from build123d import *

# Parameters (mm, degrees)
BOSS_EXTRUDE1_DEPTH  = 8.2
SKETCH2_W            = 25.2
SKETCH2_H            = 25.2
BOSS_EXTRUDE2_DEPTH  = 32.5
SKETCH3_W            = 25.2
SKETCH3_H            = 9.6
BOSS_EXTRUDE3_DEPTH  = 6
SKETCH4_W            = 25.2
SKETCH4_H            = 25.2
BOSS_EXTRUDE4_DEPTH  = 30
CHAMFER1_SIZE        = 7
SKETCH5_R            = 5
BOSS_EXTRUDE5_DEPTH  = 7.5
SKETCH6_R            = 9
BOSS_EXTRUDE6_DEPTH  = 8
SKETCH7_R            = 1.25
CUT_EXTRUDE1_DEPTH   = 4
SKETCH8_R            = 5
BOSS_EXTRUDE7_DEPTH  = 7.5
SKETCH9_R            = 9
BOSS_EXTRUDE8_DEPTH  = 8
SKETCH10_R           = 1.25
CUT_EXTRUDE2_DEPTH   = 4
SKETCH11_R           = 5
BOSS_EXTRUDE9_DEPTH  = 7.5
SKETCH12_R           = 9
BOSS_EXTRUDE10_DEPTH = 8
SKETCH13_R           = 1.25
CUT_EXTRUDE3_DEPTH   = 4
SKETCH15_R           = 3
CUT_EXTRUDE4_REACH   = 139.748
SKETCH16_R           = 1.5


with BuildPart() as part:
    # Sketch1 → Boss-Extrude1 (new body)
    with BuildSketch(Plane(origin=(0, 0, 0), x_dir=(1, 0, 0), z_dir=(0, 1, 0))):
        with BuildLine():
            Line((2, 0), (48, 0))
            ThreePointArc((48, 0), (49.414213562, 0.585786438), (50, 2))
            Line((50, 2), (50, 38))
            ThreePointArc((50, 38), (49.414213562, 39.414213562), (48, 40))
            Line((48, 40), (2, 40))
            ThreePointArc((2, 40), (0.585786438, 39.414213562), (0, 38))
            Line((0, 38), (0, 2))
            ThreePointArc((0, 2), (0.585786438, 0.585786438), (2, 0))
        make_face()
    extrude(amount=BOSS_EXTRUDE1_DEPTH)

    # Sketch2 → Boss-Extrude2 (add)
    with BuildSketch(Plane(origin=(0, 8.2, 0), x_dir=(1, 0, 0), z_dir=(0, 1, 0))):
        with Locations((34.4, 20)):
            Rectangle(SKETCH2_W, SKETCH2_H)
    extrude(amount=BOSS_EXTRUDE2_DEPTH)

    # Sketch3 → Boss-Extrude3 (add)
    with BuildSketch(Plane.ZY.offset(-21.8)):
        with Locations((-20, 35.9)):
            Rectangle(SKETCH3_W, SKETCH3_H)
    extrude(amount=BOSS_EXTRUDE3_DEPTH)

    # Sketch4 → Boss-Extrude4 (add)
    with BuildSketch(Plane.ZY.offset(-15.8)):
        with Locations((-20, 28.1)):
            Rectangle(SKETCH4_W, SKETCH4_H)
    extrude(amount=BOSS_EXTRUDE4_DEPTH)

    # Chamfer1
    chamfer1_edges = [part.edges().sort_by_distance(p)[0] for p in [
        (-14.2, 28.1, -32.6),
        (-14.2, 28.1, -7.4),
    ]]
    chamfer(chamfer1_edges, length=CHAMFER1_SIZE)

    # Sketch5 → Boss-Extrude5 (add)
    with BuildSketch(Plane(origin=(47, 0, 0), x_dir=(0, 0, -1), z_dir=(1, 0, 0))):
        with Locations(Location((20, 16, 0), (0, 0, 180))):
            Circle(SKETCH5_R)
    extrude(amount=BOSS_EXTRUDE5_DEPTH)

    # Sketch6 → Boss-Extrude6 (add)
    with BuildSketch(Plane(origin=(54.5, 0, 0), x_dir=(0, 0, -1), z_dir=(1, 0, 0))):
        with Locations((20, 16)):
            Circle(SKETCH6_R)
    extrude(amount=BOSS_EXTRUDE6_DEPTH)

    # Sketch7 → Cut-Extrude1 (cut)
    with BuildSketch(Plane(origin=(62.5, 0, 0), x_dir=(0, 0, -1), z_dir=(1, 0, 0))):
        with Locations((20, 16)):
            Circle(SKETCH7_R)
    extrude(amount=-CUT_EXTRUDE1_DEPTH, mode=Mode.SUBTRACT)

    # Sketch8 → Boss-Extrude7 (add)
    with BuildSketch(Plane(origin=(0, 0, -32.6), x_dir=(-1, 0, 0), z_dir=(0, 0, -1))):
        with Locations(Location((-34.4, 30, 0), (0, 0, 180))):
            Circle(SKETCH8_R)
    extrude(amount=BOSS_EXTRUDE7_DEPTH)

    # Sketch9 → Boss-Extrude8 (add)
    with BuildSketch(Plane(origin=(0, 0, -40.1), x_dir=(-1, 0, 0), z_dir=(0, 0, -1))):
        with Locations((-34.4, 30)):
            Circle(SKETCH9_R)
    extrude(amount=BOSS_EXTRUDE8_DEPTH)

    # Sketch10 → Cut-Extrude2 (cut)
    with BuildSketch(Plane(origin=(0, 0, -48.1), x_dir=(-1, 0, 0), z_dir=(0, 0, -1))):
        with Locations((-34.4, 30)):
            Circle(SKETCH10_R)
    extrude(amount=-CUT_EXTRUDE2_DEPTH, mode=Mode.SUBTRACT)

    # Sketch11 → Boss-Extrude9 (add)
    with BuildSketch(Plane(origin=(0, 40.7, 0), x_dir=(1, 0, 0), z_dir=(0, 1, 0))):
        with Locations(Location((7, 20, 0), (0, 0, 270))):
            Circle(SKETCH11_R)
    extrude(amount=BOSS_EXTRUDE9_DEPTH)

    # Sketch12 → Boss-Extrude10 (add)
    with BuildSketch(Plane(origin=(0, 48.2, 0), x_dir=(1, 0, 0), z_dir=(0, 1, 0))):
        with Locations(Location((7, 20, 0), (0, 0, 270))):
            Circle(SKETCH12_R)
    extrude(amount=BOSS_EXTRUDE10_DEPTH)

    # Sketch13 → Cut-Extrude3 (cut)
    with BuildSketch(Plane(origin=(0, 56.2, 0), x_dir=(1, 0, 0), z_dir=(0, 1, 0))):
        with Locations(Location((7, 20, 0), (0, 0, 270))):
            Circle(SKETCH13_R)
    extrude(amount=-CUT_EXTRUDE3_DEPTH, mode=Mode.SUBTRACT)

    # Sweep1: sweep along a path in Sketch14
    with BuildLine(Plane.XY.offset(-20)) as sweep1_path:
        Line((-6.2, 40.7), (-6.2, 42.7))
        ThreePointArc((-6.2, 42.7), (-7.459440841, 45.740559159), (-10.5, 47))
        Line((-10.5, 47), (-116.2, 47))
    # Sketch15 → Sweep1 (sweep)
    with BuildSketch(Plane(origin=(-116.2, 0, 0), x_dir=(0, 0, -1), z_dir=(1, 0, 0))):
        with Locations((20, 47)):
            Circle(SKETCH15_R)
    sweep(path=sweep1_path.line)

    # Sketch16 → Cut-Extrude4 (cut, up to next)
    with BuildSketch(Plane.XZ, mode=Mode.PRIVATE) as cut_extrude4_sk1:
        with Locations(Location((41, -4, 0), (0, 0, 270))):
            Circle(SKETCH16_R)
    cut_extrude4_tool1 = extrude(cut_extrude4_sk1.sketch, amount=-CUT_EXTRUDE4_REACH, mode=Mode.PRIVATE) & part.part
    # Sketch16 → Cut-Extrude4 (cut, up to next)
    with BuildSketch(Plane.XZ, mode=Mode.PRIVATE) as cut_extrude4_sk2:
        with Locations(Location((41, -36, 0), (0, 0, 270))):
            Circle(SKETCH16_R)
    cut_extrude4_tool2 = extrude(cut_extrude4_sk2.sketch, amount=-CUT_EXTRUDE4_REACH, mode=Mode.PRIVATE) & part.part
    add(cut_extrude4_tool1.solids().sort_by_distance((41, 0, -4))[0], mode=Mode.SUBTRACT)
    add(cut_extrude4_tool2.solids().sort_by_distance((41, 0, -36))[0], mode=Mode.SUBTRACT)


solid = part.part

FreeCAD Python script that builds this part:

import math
import FreeCAD as App
import Part
import Sketcher
Q = App.Units.Quantity


def edges_at(feature, points):
    """Names of the edges that pass closest to the given points."""
    edges = feature.Shape.Edges
    near = lambda p: min(range(len(edges)), key=lambda i: edges[i].distToShape(Part.Vertex(*p))[0])
    return sorted({f"Edge{near(p) + 1}" for p in points})


def add_polygon(sketch, points):
    """Adds a closed chain of lines whose ends are joined by coincident constraints."""
    first, n = sketch.GeometryCount, len(points)
    for a, b in zip(points, points[1:] + points[:1]):
        sketch.addGeometry(Part.LineSegment(App.Vector(*a, 0), App.Vector(*b, 0)), False)
    for i in range(n):
        sketch.addConstraint(Sketcher.Constraint("Coincident", first + i, 2, first + (i + 1) % n, 1))

doc = App.newDocument("Part")
body = doc.addObject("PartDesign::Body", "Body")

# Sketch on XZ plane
sketch1 = body.newObject("Sketcher::SketchObject", "Sketch")
sketch1.AttachmentSupport = (doc.getObject("XZ_Plane"), [""])
sketch1.MapMode = "FlatFace"
sketch1.addGeometry([
    Part.LineSegment(App.Vector(2, 0, 0), App.Vector(48, 0, 0)),  # 0
    Part.ArcOfCircle(Part.Circle(App.Vector(48, -2, 0), App.Vector(0, 0, 1), 2), math.radians(0), math.radians(90)),  # 1
    Part.LineSegment(App.Vector(50, -2, 0), App.Vector(50, -38, 0)),  # 2
    Part.ArcOfCircle(Part.Circle(App.Vector(48, -38, 0), App.Vector(0, 0, 1), 2), math.radians(-90), math.radians(0)),  # 3
    Part.LineSegment(App.Vector(48, -40, 0), App.Vector(2, -40, 0)),  # 4
    Part.ArcOfCircle(Part.Circle(App.Vector(2, -38, 0), App.Vector(0, 0, 1), 2), math.radians(-180), math.radians(-90)),  # 5
    Part.LineSegment(App.Vector(0, -38, 0), App.Vector(0, -2, 0)),  # 6
    Part.ArcOfCircle(Part.Circle(App.Vector(2, -2, 0), App.Vector(0, 0, 1), 2), math.radians(90), math.radians(180)),  # 7
], False)
sketch1.addConstraint([
    Sketcher.Constraint("Tangent", 0, 2, 1, 2),
    Sketcher.Constraint("Tangent", 1, 1, 2, 1),
    Sketcher.Constraint("Tangent", 2, 2, 3, 2),
    Sketcher.Constraint("Tangent", 3, 1, 4, 1),
    Sketcher.Constraint("Tangent", 4, 2, 5, 2),
    Sketcher.Constraint("Tangent", 5, 1, 6, 1),
    Sketcher.Constraint("Tangent", 6, 2, 7, 2),
    Sketcher.Constraint("Tangent", 7, 1, 0, 1),
    Sketcher.Constraint("Horizontal", 0),
    Sketcher.Constraint("Vertical", 2),
    Sketcher.Constraint("Horizontal", 4),
    Sketcher.Constraint("Vertical", 6),
    Sketcher.Constraint("Equal", 1, 3),
    Sketcher.Constraint("Equal", 3, 5),
    Sketcher.Constraint("Equal", 5, 7),
    Sketcher.Constraint("PointOnObject", 0, 2, -1),
    Sketcher.Constraint("PointOnObject", 5, 1, -2),
    Sketcher.Constraint("Radius", 1, Q("2 mm")),
    Sketcher.Constraint("DistanceX", 0, 1, 0, 2, Q("46 mm")),
    Sketcher.Constraint("DistanceY", 2, 2, 2, 1, Q("36 mm")),
])
pad1 = body.newObject("PartDesign::Pad", "Pad")
pad1.Profile = sketch1
pad1.Length = 8.2
pad1.Reversed = True

# Sketch on XZ plane
sketch2 = body.newObject("Sketcher::SketchObject", "Sketch001")
sketch2.AttachmentSupport = (doc.getObject("XZ_Plane"), [""])
sketch2.MapMode = "FlatFace"
sketch2.AttachmentOffset = App.Placement(App.Vector(0, 0, -8.2), App.Rotation())
add_polygon(sketch2, [(22, -33), (22, -7), (47, -7), (47, -33)])  # lines 0-3
sketch2.addConstraint([
    Sketcher.Constraint("Vertical", 0),
    Sketcher.Constraint("Horizontal", 1),
    Sketcher.Constraint("Vertical", 2),
    Sketcher.Constraint("Horizontal", 3),
    Sketcher.Constraint("Equal", 3, 0),
    Sketcher.Constraint("DistanceX", 1, 1, 1, 2, Q("25.2 mm")),
    Sketcher.Constraint("DistanceX", -1, 1, 1, 2, Q("47 mm")),
    Sketcher.Constraint("DistanceY", 0, 2, -1, 1, Q("7.4 mm")),
])
pad2 = body.newObject("PartDesign::Pad", "Pad001")
pad2.Profile = sketch2
pad2.Length = 32.5
pad2.Reversed = True

# Sketch on YZ plane
sketch3 = body.newObject("Sketcher::SketchObject", "Sketch002")
sketch3.AttachmentSupport = (doc.getObject("YZ_Plane"), [""])
sketch3.MapMode = "FlatFace"
sketch3.AttachmentOffset = App.Placement(App.Vector(0, 0, 21.8), App.Rotation())
add_polygon(sketch3, [(41, -33), (31, -33), (31, -7), (41, -7)])  # lines 0-3
sketch3.addConstraint([
    Sketcher.Constraint("Horizontal", 0),
    Sketcher.Constraint("Vertical", 1),
    Sketcher.Constraint("Horizontal", 2),
    Sketcher.Constraint("Vertical", 3),
    Sketcher.Constraint("DistanceX", 0, 2, 0, 1, Q("9.6 mm")),
    Sketcher.Constraint("DistanceY", 1, 1, 1, 2, Q("25.2 mm")),
    Sketcher.Constraint("DistanceX", -1, 1, 0, 2, Q("31.1 mm")),
    Sketcher.Constraint("DistanceY", 0, 2, -1, 1, Q("32.6 mm")),
])
pad3 = body.newObject("PartDesign::Pad", "Pad002")
pad3.Profile = sketch3
pad3.Length = 6
pad3.Reversed = True

# Sketch on YZ plane
sketch4 = body.newObject("Sketcher::SketchObject", "Sketch003")
sketch4.AttachmentSupport = (doc.getObject("YZ_Plane"), [""])
sketch4.MapMode = "FlatFace"
sketch4.AttachmentOffset = App.Placement(App.Vector(0, 0, 15.8), App.Rotation())
add_polygon(sketch4, [(41, -33), (16, -33), (16, -7), (41, -7)])  # lines 0-3
sketch4.addConstraint([
    Sketcher.Constraint("Horizontal", 0),
    Sketcher.Constraint("Vertical", 1),
    Sketcher.Constraint("Horizontal", 2),
    Sketcher.Constraint("Vertical", 3),
    Sketcher.Constraint("Equal", 2, 1),
    Sketcher.Constraint("DistanceX", 0, 2, 0, 1, Q("25.2 mm")),
    Sketcher.Constraint("DistanceX", -1, 1, 0, 2, Q("15.5 mm")),
    Sketcher.Constraint("DistanceY", 0, 2, -1, 1, Q("32.6 mm")),
])
pad4 = body.newObject("PartDesign::Pad", "Pad003")
pad4.Profile = sketch4
pad4.Length = 30
pad4.Reversed = True
doc.recompute()

chamfer = body.newObject("PartDesign::Chamfer", "Chamfer")
chamfer.Base = (pad4, edges_at(pad4, [(-14.2, 28.1, -32.6), (-14.2, 28.1, -7.4)]))
chamfer.Size = 7

# Sketch on YZ plane
sketch5 = body.newObject("Sketcher::SketchObject", "Sketch004")
sketch5.AttachmentSupport = (doc.getObject("YZ_Plane"), [""])
sketch5.MapMode = "FlatFace"
sketch5.AttachmentOffset = App.Placement(App.Vector(0, 0, 47), App.Rotation())
sketch5.addGeometry(Part.Circle(App.Vector(16, -20, 0), App.Vector(0, 0, 1), 5), False)
sketch5.addConstraint([
    Sketcher.Constraint("Diameter", 0, Q("10 mm")),
    Sketcher.Constraint("DistanceX", -1, 1, 0, 3, Q("16 mm")),
    Sketcher.Constraint("DistanceY", 0, 3, -1, 1, Q("20 mm")),
])
pad5 = body.newObject("PartDesign::Pad", "Pad004")
pad5.Profile = sketch5
pad5.Length = 7.5

# Sketch on YZ plane
sketch6 = body.newObject("Sketcher::SketchObject", "Sketch005")
sketch6.AttachmentSupport = (doc.getObject("YZ_Plane"), [""])
sketch6.MapMode = "FlatFace"
sketch6.AttachmentOffset = App.Placement(App.Vector(0, 0, 54.5), App.Rotation())
sketch6.addGeometry(Part.Circle(App.Vector(16, -20, 0), App.Vector(0, 0, 1), 9), False)
sketch6.addConstraint([
    Sketcher.Constraint("Diameter", 0, Q("18 mm")),
    Sketcher.Constraint("DistanceX", -1, 1, 0, 3, Q("16 mm")),
    Sketcher.Constraint("DistanceY", 0, 3, -1, 1, Q("20 mm")),
])
pad6 = body.newObject("PartDesign::Pad", "Pad005")
pad6.Profile = sketch6
pad6.Length = 8

# Sketch on YZ plane
sketch7 = body.newObject("Sketcher::SketchObject", "Sketch006")
sketch7.AttachmentSupport = (doc.getObject("YZ_Plane"), [""])
sketch7.MapMode = "FlatFace"
sketch7.AttachmentOffset = App.Placement(App.Vector(0, 0, 62.5), App.Rotation())
sketch7.addGeometry(Part.Circle(App.Vector(16, -20, 0), App.Vector(0, 0, 1), 1.2), False)
sketch7.addConstraint([
    Sketcher.Constraint("Diameter", 0, Q("2.5 mm")),
    Sketcher.Constraint("DistanceX", -1, 1, 0, 3, Q("16 mm")),
    Sketcher.Constraint("DistanceY", 0, 3, -1, 1, Q("20 mm")),
])
pocket1 = body.newObject("PartDesign::Pocket", "Pocket")
pocket1.Profile = sketch7
pocket1.Length = 4

# Sketch on XY plane
sketch8 = body.newObject("Sketcher::SketchObject", "Sketch007")
sketch8.AttachmentSupport = (doc.getObject("XY_Plane"), [""])
sketch8.MapMode = "FlatFace"
sketch8.AttachmentOffset = App.Placement(App.Vector(0, 0, -32.6), App.Rotation())
sketch8.addGeometry(Part.Circle(App.Vector(34, 30, 0), App.Vector(0, 0, 1), 5), False)
sketch8.addConstraint([
    Sketcher.Constraint("Diameter", 0, Q("10 mm")),
    Sketcher.Constraint("DistanceY", -1, 1, 0, 3, Q("30 mm")),
    Sketcher.Constraint("DistanceX", -1, 1, 0, 3, Q("34.4 mm")),
])
pad7 = body.newObject("PartDesign::Pad", "Pad006")
pad7.Profile = sketch8
pad7.Length = 7.5
pad7.Reversed = True

# Sketch on XY plane
sketch9 = body.newObject("Sketcher::SketchObject", "Sketch008")
sketch9.AttachmentSupport = (doc.getObject("XY_Plane"), [""])
sketch9.MapMode = "FlatFace"
sketch9.AttachmentOffset = App.Placement(App.Vector(0, 0, -40.1), App.Rotation())
sketch9.addGeometry(Part.Circle(App.Vector(34, 30, 0), App.Vector(0, 0, 1), 9), False)
sketch9.addConstraint([
    Sketcher.Constraint("Diameter", 0, Q("18 mm")),
    Sketcher.Constraint("DistanceY", -1, 1, 0, 3, Q("30 mm")),
    Sketcher.Constraint("DistanceX", -1, 1, 0, 3, Q("34.4 mm")),
])
pad8 = body.newObject("PartDesign::Pad", "Pad007")
pad8.Profile = sketch9
pad8.Length = 8
pad8.Reversed = True

# Sketch on XY plane
sketch10 = body.newObject("Sketcher::SketchObject", "Sketch009")
sketch10.AttachmentSupport = (doc.getObject("XY_Plane"), [""])
sketch10.MapMode = "FlatFace"
sketch10.AttachmentOffset = App.Placement(App.Vector(0, 0, -48.1), App.Rotation())
sketch10.addGeometry(Part.Circle(App.Vector(34.4, 30, 0), App.Vector(0, 0, 1), 1.2), False)
sketch10.addConstraint([
    Sketcher.Constraint("Diameter", 0, Q("2.5 mm")),
    Sketcher.Constraint("DistanceY", -1, 1, 0, 3, Q("30 mm")),
    Sketcher.Constraint("DistanceX", -1, 1, 0, 3, Q("34.4 mm")),
])
pocket2 = body.newObject("PartDesign::Pocket", "Pocket001")
pocket2.Profile = sketch10
pocket2.Length = 4
pocket2.Reversed = True

# Sketch on XZ plane
sketch11 = body.newObject("Sketcher::SketchObject", "Sketch010")
sketch11.AttachmentSupport = (doc.getObject("XZ_Plane"), [""])
sketch11.MapMode = "FlatFace"
sketch11.AttachmentOffset = App.Placement(App.Vector(0, 0, -40.7), App.Rotation())
sketch11.addGeometry(Part.Circle(App.Vector(7, -20, 0), App.Vector(0, 0, 1), 5), False)
sketch11.addConstraint([
    Sketcher.Constraint("Diameter", 0, Q("10 mm")),
    Sketcher.Constraint("DistanceX", -1, 1, 0, 3, Q("7 mm")),
    Sketcher.Constraint("DistanceY", 0, 3, -1, 1, Q("20 mm")),
])
pad9 = body.newObject("PartDesign::Pad", "Pad008")
pad9.Profile = sketch11
pad9.Length = 7.5
pad9.Reversed = True

# Sketch on XZ plane
sketch12 = body.newObject("Sketcher::SketchObject", "Sketch011")
sketch12.AttachmentSupport = (doc.getObject("XZ_Plane"), [""])
sketch12.MapMode = "FlatFace"
sketch12.AttachmentOffset = App.Placement(App.Vector(0, 0, -48.2), App.Rotation())
sketch12.addGeometry(Part.Circle(App.Vector(7, -20, 0), App.Vector(0, 0, 1), 9), False)
sketch12.addConstraint([
    Sketcher.Constraint("Diameter", 0, Q("18 mm")),
    Sketcher.Constraint("DistanceX", -1, 1, 0, 3, Q("7 mm")),
    Sketcher.Constraint("DistanceY", 0, 3, -1, 1, Q("20 mm")),
])
pad10 = body.newObject("PartDesign::Pad", "Pad009")
pad10.Profile = sketch12
pad10.Length = 8
pad10.Reversed = True

# Sketch on XZ plane
sketch13 = body.newObject("Sketcher::SketchObject", "Sketch012")
sketch13.AttachmentSupport = (doc.getObject("XZ_Plane"), [""])
sketch13.MapMode = "FlatFace"
sketch13.AttachmentOffset = App.Placement(App.Vector(0, 0, -56.2), App.Rotation())
sketch13.addGeometry(Part.Circle(App.Vector(7, -20, 0), App.Vector(0, 0, 1), 1.2), False)
sketch13.addConstraint([
    Sketcher.Constraint("Diameter", 0, Q("2.5 mm")),
    Sketcher.Constraint("DistanceX", -1, 1, 0, 3, Q("7 mm")),
    Sketcher.Constraint("DistanceY", 0, 3, -1, 1, Q("20 mm")),
])
pocket3 = body.newObject("PartDesign::Pocket", "Pocket002")
pocket3.Profile = sketch13
pocket3.Length = 4
pocket3.Reversed = True

# Sketch on YZ plane
sketch14 = body.newObject("Sketcher::SketchObject", "Sketch013")
sketch14.AttachmentSupport = (doc.getObject("YZ_Plane"), [""])
sketch14.MapMode = "FlatFace"
sketch14.AttachmentOffset = App.Placement(App.Vector(0, 0, -116.2), App.Rotation())
sketch14.addGeometry(Part.Circle(App.Vector(47, -20, 0), App.Vector(0, 0, 1), 3), False)
sketch14.addConstraint([
    Sketcher.Constraint("Diameter", 0, Q("6 mm")),
    Sketcher.Constraint("DistanceX", -1, 1, 0, 3, Q("47 mm")),
    Sketcher.Constraint("DistanceY", 0, 3, -1, 1, Q("20 mm")),
])

# Sketch on XY plane
sketch15 = body.newObject("Sketcher::SketchObject", "Sketch014")
sketch15.AttachmentSupport = (doc.getObject("XY_Plane"), [""])
sketch15.MapMode = "FlatFace"
sketch15.AttachmentOffset = App.Placement(App.Vector(0, 0, -20), App.Rotation())
sketch15.addGeometry([
    Part.LineSegment(App.Vector(-6.2, 40.7, 0), App.Vector(-6.2, 42.7, 0)),
    Part.ArcOfCircle(Part.Circle(App.Vector(-10.5, 42.7, 0), App.Vector(0, 0, 1), 4.3), math.radians(0), math.radians(90)),
    Part.LineSegment(App.Vector(-10.5, 47, 0), App.Vector(-116.2, 47, 0)),
], False)
sketch15.addConstraint([
    Sketcher.Constraint("Tangent", 0, 2, 1, 1),
    Sketcher.Constraint("Tangent", 1, 2, 2, 1),
    Sketcher.Constraint("Vertical", 0),
    Sketcher.Constraint("Horizontal", 2),
    Sketcher.Constraint("Radius", 1, Q("4.3 mm")),
    Sketcher.Constraint("DistanceY", 0, 1, 0, 2, Q("2 mm")),
    Sketcher.Constraint("DistanceX", 2, 2, 2, 1, Q("105.7 mm")),
    Sketcher.Constraint("DistanceY", -1, 1, 1, 2, Q("47 mm")),
    Sketcher.Constraint("DistanceX", 1, 3, -1, 1, Q("10.5 mm")),
])
doc.recompute()

additivepipe = body.newObject("PartDesign::AdditivePipe", "AdditivePipe")
additivepipe.Profile = sketch14
additivepipe.Spine = (sketch15, ["Edge1", "Edge2", "Edge3"])

# Sketch on XZ plane
sketch16 = body.newObject("Sketcher::SketchObject", "Sketch015")
sketch16.AttachmentSupport = (doc.getObject("XZ_Plane"), [""])
sketch16.MapMode = "FlatFace"
sketch16.addGeometry(Part.Circle(App.Vector(41, -4, 0), App.Vector(0, 0, 1), 1.5), False)
sketch16.addConstraint([
    Sketcher.Constraint("Diameter", 0, Q("3 mm")),
    Sketcher.Constraint("DistanceX", -1, 1, 0, 3, Q("41 mm")),
    Sketcher.Constraint("DistanceY", 0, 3, -1, 1, Q("4 mm")),
])
pocket4 = body.newObject("PartDesign::Pocket", "Pocket003")
pocket4.Profile = sketch16
pocket4.Type = "UpToFirst"

# Sketch on XZ plane
sketch17 = body.newObject("Sketcher::SketchObject", "Sketch016")
sketch17.AttachmentSupport = (doc.getObject("XZ_Plane"), [""])
sketch17.MapMode = "FlatFace"
sketch17.addGeometry(Part.Circle(App.Vector(41, -36, 0), App.Vector(0, 0, 1), 1.5), False)
sketch17.addConstraint([
    Sketcher.Constraint("Diameter", 0, Q("3 mm")),
    Sketcher.Constraint("DistanceX", -1, 1, 0, 3, Q("41 mm")),
    Sketcher.Constraint("DistanceY", 0, 3, -1, 1, Q("36 mm")),
])
pocket5 = body.newObject("PartDesign::Pocket", "Pocket004")
pocket5.Profile = sketch17
pocket5.Type = "UpToFirst"

doc.recompute()
